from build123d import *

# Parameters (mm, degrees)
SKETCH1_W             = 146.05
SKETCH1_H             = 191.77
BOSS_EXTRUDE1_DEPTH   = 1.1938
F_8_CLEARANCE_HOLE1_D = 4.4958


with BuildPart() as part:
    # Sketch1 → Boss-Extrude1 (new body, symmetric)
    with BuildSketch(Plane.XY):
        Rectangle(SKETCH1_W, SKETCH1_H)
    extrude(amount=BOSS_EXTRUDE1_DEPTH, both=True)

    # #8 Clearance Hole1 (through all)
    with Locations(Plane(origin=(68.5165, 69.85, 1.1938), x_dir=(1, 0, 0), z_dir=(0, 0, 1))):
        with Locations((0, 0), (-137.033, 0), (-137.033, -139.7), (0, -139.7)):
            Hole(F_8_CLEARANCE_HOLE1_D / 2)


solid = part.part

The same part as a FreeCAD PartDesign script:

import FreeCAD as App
import Part
import Sketcher
from FreeCAD import Vector
Q = App.Units.Quantity

doc = App.newDocument("Part")
params = doc.addObject("Spreadsheet::Sheet", "Params")
for row, (alias, value) in enumerate([
    ("sketch1_width", "5.75 in"),
    ("sketch1_height", "7.55 in"),
    ("pad1_length", "0.094 in"),
    ("sketch2_diameter", "0.177 in"),
    ("hole_diameter", "0.177 in"),
], start=1):
    params.set(f"A{row}", alias)
    params.set(f"B{row}", "=" + value)
    params.setAlias(f"B{row}", alias)

body = doc.addObject("PartDesign::Body", "Body")

# Sketch on XY plane
sketch1 = body.newObject("Sketcher::SketchObject", "Sketch")
sketch1.AttachmentSupport = (doc.getObject("XY_Plane"), [""])
sketch1.MapMode = "FlatFace"
sketch1.addGeometry([
    Part.LineSegment(Vector(-73, 96, 0), Vector(-73, -96, 0)),
    Part.LineSegment(Vector(-73, -96, 0), Vector(73, -96, 0)),
    Part.LineSegment(Vector(73, -96, 0), Vector(73, 96, 0)),
    Part.LineSegment(Vector(73, 96, 0), Vector(-73, 96, 0)),
], False)
sketch1.addConstraint([
    Sketcher.Constraint("Coincident", 0, 2, 1, 1),
    Sketcher.Constraint("Coincident", 1, 2, 2, 1),
    Sketcher.Constraint("Coincident", 2, 2, 3, 1),
    Sketcher.Constraint("Coincident", 3, 2, 0, 1),
    Sketcher.Constraint("Vertical", 0),
    Sketcher.Constraint("Horizontal", 1),
    Sketcher.Constraint("Vertical", 2),
    Sketcher.Constraint("Horizontal", 3),
    Sketcher.Constraint("Symmetric", 0, 2, 2, 2, -1, 1),
    Sketcher.Constraint("DistanceX", 1, 1, 1, 2, Q("5.75 in")),
    Sketcher.Constraint("DistanceY", 0, 2, 0, 1, Q("7.55 in")),
])
sketch1.setExpression("Constraints[9]", "Params.sketch1_width")
sketch1.setExpression("Constraints[10]", "Params.sketch1_height")
pad1 = body.newObject("PartDesign::Pad", "Pad")
pad1.Profile = sketch1
pad1.setExpression("Length", "Params.pad1_length")
pad1.Midplane = True

# Sketch on XY plane
sketch2 = body.newObject("Sketcher::SketchObject", "Sketch001")
sketch2.AttachmentSupport = (doc.getObject("XY_Plane"), [""])
sketch2.MapMode = "FlatFace"
sketch2.AttachmentOffset = App.Placement(Vector(0, 0, 0.047 * 25.4), App.Rotation())
sketch2.addGeometry([
    Part.Circle(Vector(68.5, 69.8, 0), Vector(0, 0, 1), 2.2),
    Part.Circle(Vector(-68.5, 69.8, 0), Vector(0, 0, 1), 2.2),
    Part.Circle(Vector(-68.5, -69.8, 0), Vector(0, 0, 1), 2.2),
    Part.Circle(Vector(68.5, -69.8, 0), Vector(0, 0, 1), 2.2),
], False)
sketch2.addConstraint([
    Sketcher.Constraint("Equal", 0, 1),
    Sketcher.Constraint("Equal", 1, 2),
    Sketcher.Constraint("Equal", 2, 3),
    Sketcher.Constraint("Symmetric", 0, 3, 2, 3, -1, 1),
    Sketcher.Constraint("Symmetric", 1, 3, 3, 3, -1, 1),
    Sketcher.Constraint("Symmetric", 0, 3, 1, 3, -2),
    Sketcher.Constraint("Diameter", 0, Q("0.177 in")),
    Sketcher.Constraint("DistanceY", 2, 3, 1, 3, Q("5.5 in")),
    Sketcher.Constraint("DistanceX", 1, 3, 0, 3, Q("5.395 in")),
])
sketch2.setExpression("Constraints[6]", "Params.sketch2_diameter")
doc.recompute()
hole = body.newObject("PartDesign::Hole", "Hole")
hole.Profile = sketch2
hole.ThreadType = "None"
hole.setExpression("Diameter", "Params.hole_diameter")
hole.DepthType = "ThroughAll"

doc.recompute()
